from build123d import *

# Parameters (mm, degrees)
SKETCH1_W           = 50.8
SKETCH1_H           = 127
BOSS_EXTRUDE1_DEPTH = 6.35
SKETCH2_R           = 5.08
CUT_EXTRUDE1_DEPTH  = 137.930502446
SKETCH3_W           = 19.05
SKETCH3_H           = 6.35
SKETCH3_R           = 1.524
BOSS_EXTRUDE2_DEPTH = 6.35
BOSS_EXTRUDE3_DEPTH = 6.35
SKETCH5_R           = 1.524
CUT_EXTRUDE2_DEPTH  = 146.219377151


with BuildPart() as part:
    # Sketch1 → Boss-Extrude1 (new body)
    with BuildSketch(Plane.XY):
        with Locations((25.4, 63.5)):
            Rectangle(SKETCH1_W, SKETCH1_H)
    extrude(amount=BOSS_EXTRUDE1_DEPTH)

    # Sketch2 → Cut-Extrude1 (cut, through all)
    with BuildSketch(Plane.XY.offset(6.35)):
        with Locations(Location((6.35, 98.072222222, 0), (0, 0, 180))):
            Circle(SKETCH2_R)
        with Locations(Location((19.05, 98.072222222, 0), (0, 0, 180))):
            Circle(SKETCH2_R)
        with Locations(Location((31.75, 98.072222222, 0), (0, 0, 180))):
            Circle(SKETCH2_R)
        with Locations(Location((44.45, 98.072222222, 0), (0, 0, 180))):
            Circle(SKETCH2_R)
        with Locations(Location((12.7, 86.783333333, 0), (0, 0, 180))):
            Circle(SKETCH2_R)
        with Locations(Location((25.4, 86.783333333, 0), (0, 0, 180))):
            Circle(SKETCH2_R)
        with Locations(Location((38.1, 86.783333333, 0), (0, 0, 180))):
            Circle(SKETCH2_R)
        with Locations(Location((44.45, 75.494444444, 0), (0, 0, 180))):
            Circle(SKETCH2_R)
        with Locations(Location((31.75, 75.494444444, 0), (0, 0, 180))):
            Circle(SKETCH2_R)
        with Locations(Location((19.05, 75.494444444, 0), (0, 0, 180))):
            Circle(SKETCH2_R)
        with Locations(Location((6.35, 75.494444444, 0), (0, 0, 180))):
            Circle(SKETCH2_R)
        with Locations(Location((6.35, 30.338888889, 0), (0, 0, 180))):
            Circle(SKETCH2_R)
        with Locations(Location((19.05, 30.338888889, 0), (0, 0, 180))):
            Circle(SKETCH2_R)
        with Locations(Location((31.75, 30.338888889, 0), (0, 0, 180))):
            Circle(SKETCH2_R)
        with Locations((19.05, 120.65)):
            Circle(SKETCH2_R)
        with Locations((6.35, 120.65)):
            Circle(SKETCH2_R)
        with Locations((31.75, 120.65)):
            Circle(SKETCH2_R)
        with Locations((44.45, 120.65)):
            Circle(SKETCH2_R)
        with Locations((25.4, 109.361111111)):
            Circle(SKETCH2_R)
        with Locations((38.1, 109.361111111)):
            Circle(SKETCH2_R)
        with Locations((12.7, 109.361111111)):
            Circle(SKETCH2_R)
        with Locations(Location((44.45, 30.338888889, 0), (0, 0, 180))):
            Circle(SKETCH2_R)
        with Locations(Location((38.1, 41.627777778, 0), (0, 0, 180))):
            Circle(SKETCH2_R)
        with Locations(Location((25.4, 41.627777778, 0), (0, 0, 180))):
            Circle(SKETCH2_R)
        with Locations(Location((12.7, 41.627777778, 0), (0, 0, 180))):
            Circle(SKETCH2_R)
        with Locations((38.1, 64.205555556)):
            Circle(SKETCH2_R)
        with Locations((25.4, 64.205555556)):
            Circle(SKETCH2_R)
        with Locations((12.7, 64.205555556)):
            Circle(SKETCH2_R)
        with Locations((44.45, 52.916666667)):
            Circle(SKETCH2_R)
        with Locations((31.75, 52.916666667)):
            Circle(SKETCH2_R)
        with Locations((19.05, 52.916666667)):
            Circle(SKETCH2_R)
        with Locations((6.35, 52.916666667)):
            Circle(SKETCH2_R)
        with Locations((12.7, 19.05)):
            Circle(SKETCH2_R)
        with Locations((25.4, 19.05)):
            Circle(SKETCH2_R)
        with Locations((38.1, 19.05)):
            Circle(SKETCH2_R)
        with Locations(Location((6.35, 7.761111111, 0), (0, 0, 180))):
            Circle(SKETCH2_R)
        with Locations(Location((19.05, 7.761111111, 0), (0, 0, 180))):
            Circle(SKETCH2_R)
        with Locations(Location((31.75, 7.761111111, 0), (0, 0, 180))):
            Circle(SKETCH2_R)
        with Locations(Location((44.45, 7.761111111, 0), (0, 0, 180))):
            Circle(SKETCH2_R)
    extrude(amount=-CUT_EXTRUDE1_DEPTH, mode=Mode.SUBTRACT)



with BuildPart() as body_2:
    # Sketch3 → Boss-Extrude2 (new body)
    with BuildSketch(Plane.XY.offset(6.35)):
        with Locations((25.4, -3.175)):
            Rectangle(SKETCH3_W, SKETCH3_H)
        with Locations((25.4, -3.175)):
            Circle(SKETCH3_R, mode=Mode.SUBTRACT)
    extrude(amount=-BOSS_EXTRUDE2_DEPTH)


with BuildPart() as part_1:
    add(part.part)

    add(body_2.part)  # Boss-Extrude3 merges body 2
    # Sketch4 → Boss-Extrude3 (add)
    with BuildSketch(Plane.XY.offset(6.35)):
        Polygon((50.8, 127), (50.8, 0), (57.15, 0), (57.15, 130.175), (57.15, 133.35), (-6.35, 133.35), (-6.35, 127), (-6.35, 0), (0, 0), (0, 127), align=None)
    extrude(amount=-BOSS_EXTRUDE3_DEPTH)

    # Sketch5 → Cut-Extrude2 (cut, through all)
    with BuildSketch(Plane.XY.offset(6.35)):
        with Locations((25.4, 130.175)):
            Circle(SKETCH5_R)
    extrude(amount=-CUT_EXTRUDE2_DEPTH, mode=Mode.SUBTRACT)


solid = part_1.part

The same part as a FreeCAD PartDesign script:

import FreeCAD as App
import Part
import Sketcher

V = App.Vector
Q = App.Units.Quantity


def add_polygon(sketch, points):
    """Adds a closed chain of lines whose ends are joined by coincident constraints."""
    first, n = sketch.GeometryCount, len(points)
    for a, b in zip(points, points[1:] + points[:1]):
        sketch.addGeometry(Part.LineSegment(App.Vector(*a, 0), App.Vector(*b, 0)), False)
    for i in range(n):
        sketch.addConstraint(Sketcher.Constraint("Coincident", first + i, 2, first + (i + 1) % n, 1))

doc = App.newDocument("Part")
body = doc.addObject("PartDesign::Body", "Body")

sketch1 = doc.addObject("Sketcher::SketchObject", "Sketch")
body.addObject(sketch1)
sketch1.AttachmentSupport = (doc.XY_Plane, [""])
sketch1.MapMode = "FlatFace"
add_polygon(sketch1, [(0, 127), (0, 0), (51, 0), (51, 127)])
sketch1.addConstraint(Sketcher.Constraint("Vertical", 0))
sketch1.addConstraint(Sketcher.Constraint("Horizontal", 1))
sketch1.addConstraint(Sketcher.Constraint("Vertical", 2))
sketch1.addConstraint(Sketcher.Constraint("Horizontal", 3))
sketch1.addConstraint(Sketcher.Constraint("Coincident", 0, 2, -1, 1))
sketch1.addConstraint(Sketcher.Constraint("DistanceX", 1, 1, 1, 2, Q("2 in")))
sketch1.addConstraint(Sketcher.Constraint("DistanceY", 0, 2, 0, 1, Q("5 in")))
pad1 = doc.addObject("PartDesign::Pad", "Pad")
body.addObject(pad1)
pad1.Profile = sketch1
pad1.Length = Q("0.25 in")

sketch2 = doc.addObject("Sketcher::SketchObject", "Sketch001")
body.addObject(sketch2)
sketch2.AttachmentSupport = (doc.XY_Plane, [""])
sketch2.MapMode = "FlatFace"
sketch2.AttachmentOffset = App.Placement(V(0, 0, 0.25 * 25.4), App.Rotation())
sketch2.addGeometry(Part.Circle(V(6, 98, 0), V(0, 0, 1), 5), False)
sketch2.addGeometry(Part.Circle(V(19, 98, 0), V(0, 0, 1), 5), False)
sketch2.addGeometry(Part.Circle(V(32, 98, 0), V(0, 0, 1), 5), False)
sketch2.addGeometry(Part.Circle(V(44, 98, 0), V(0, 0, 1), 5), False)
sketch2.addGeometry(Part.Circle(V(13, 87, 0), V(0, 0, 1), 5), False)
sketch2.addGeometry(Part.Circle(V(25, 87, 0), V(0, 0, 1), 5), False)
sketch2.addGeometry(Part.Circle(V(38, 87, 0), V(0, 0, 1), 5), False)
sketch2.addGeometry(Part.Circle(V(44, 75, 0), V(0, 0, 1), 5), False)
sketch2.addGeometry(Part.Circle(V(32, 75, 0), V(0, 0, 1), 5), False)
sketch2.addGeometry(Part.Circle(V(19, 75, 0), V(0, 0, 1), 5), False)
sketch2.addGeometry(Part.Circle(V(6, 75, 0), V(0, 0, 1), 5), False)
sketch2.addGeometry(Part.Circle(V(6, 30, 0), V(0, 0, 1), 5), False)
sketch2.addGeometry(Part.Circle(V(19, 30, 0), V(0, 0, 1), 5), False)
sketch2.addGeometry(Part.Circle(V(32, 30, 0), V(0, 0, 1), 5), False)
sketch2.addGeometry(Part.Circle(V(19, 121, 0), V(0, 0, 1), 5), False)
sketch2.addGeometry(Part.Circle(V(6, 121, 0), V(0, 0, 1), 5), False)
sketch2.addGeometry(Part.Circle(V(32, 121, 0), V(0, 0, 1), 5), False)
sketch2.addGeometry(Part.Circle(V(44, 121, 0), V(0, 0, 1), 5), False)
sketch2.addGeometry(Part.Circle(V(25, 109, 0), V(0, 0, 1), 5), False)
sketch2.addGeometry(Part.Circle(V(38, 109, 0), V(0, 0, 1), 5), False)
sketch2.addGeometry(Part.Circle(V(13, 109, 0), V(0, 0, 1), 5), False)
sketch2.addGeometry(Part.Circle(V(44, 30, 0), V(0, 0, 1), 5), False)
sketch2.addGeometry(Part.Circle(V(38, 42, 0), V(0, 0, 1), 5), False)
sketch2.addGeometry(Part.Circle(V(25, 42, 0), V(0, 0, 1), 5), False)
sketch2.addGeometry(Part.Circle(V(13, 42, 0), V(0, 0, 1), 5), False)
sketch2.addGeometry(Part.Circle(V(38, 64, 0), V(0, 0, 1), 5), False)
sketch2.addGeometry(Part.Circle(V(25, 64, 0), V(0, 0, 1), 5), False)
sketch2.addGeometry(Part.Circle(V(13, 64, 0), V(0, 0, 1), 5), False)
sketch2.addGeometry(Part.Circle(V(44, 53, 0), V(0, 0, 1), 5), False)
sketch2.addGeometry(Part.Circle(V(32, 53, 0), V(0, 0, 1), 5), False)
sketch2.addGeometry(Part.Circle(V(19, 53, 0), V(0, 0, 1), 5), False)
sketch2.addGeometry(Part.Circle(V(6, 53, 0), V(0, 0, 1), 5), False)
sketch2.addGeometry(Part.Circle(V(13, 19, 0), V(0, 0, 1), 5), False)
sketch2.addGeometry(Part.Circle(V(25, 19, 0), V(0, 0, 1), 5), False)
sketch2.addGeometry(Part.Circle(V(38, 19, 0), V(0, 0, 1), 5), False)
sketch2.addGeometry(Part.Circle(V(6, 8, 0), V(0, 0, 1), 5), False)
sketch2.addGeometry(Part.Circle(V(19, 8, 0), V(0, 0, 1), 5), False)
sketch2.addGeometry(Part.Circle(V(32, 8, 0), V(0, 0, 1), 5), False)
sketch2.addGeometry(Part.Circle(V(44, 8, 0), V(0, 0, 1), 5), False)
sketch2.addConstraint(Sketcher.Constraint("Equal", 0, 1))
sketch2.addConstraint(Sketcher.Constraint("Equal", 1, 2))
sketch2.addConstraint(Sketcher.Constraint("Equal", 2, 3))
sketch2.addConstraint(Sketcher.Constraint("Equal", 3, 4))
sketch2.addConstraint(Sketcher.Constraint("Equal", 4, 5))
sketch2.addConstraint(Sketcher.Constraint("Equal", 5, 6))
sketch2.addConstraint(Sketcher.Constraint("Equal", 6, 7))
sketch2.addConstraint(Sketcher.Constraint("Equal", 7, 8))
sketch2.addConstraint(Sketcher.Constraint("Equal", 8, 9))
sketch2.addConstraint(Sketcher.Constraint("Equal", 9, 10))
sketch2.addConstraint(Sketcher.Constraint("Equal", 10, 11))
sketch2.addConstraint(Sketcher.Constraint("Equal", 11, 12))
sketch2.addConstraint(Sketcher.Constraint("Equal", 12, 13))
sketch2.addConstraint(Sketcher.Constraint("Equal", 13, 14))
sketch2.addConstraint(Sketcher.Constraint("Equal", 14, 15))
sketch2.addConstraint(Sketcher.Constraint("Equal", 15, 16))
sketch2.addConstraint(Sketcher.Constraint("Equal", 16, 17))
sketch2.addConstraint(Sketcher.Constraint("Equal", 17, 18))
sketch2.addConstraint(Sketcher.Constraint("Equal", 18, 19))
sketch2.addConstraint(Sketcher.Constraint("Equal", 19, 20))
sketch2.addConstraint(Sketcher.Constraint("Equal", 20, 21))
sketch2.addConstraint(Sketcher.Constraint("Equal", 21, 22))
sketch2.addConstraint(Sketcher.Constraint("Equal", 22, 23))
sketch2.addConstraint(Sketcher.Constraint("Equal", 23, 24))
sketch2.addConstraint(Sketcher.Constraint("Equal", 24, 25))
sketch2.addConstraint(Sketcher.Constraint("Equal", 25, 26))
sketch2.addConstraint(Sketcher.Constraint("Equal", 26, 27))
sketch2.addConstraint(Sketcher.Constraint("Equal", 27, 28))
sketch2.addConstraint(Sketcher.Constraint("Equal", 28, 29))
sketch2.addConstraint(Sketcher.Constraint("Equal", 29, 30))
sketch2.addConstraint(Sketcher.Constraint("Equal", 30, 31))
sketch2.addConstraint(Sketcher.Constraint("Equal", 31, 32))
sketch2.addConstraint(Sketcher.Constraint("Equal", 32, 33))
sketch2.addConstraint(Sketcher.Constraint("Equal", 33, 34))
sketch2.addConstraint(Sketcher.Constraint("Equal", 34, 35))
sketch2.addConstraint(Sketcher.Constraint("Equal", 35, 36))
sketch2.addConstraint(Sketcher.Constraint("Equal", 36, 37))
sketch2.addConstraint(Sketcher.Constraint("Equal", 37, 38))
sketch2.addConstraint(Sketcher.Constraint("Horizontal", 0, 3, 1, 3))
sketch2.addConstraint(Sketcher.Constraint("Horizontal", 1, 3, 2, 3))
sketch2.addConstraint(Sketcher.Constraint("Horizontal", 2, 3, 3, 3))
sketch2.addConstraint(Sketcher.Constraint("Horizontal", 4, 3, 5, 3))
sketch2.addConstraint(Sketcher.Constraint("Horizontal", 5, 3, 6, 3))
sketch2.addConstraint(Sketcher.Constraint("Horizontal", 7, 3, 8, 3))
sketch2.addConstraint(Sketcher.Constraint("Horizontal", 8, 3, 9, 3))
sketch2.addConstraint(Sketcher.Constraint("Horizontal", 9, 3, 10, 3))
sketch2.addConstraint(Sketcher.Constraint("Horizontal", 11, 3, 12, 3))
sketch2.addConstraint(Sketcher.Constraint("Horizontal", 12, 3, 13, 3))
sketch2.addConstraint(Sketcher.Constraint("Horizontal", 14, 3, 15, 3))
sketch2.addConstraint(Sketcher.Constraint("Horizontal", 15, 3, 16, 3))
sketch2.addConstraint(Sketcher.Constraint("Horizontal", 16, 3, 17, 3))
sketch2.addConstraint(Sketcher.Constraint("Horizontal", 18, 3, 19, 3))
sketch2.addConstraint(Sketcher.Constraint("Horizontal", 19, 3, 20, 3))
sketch2.addConstraint(Sketcher.Constraint("Horizontal", 13, 3, 21, 3))
sketch2.addConstraint(Sketcher.Constraint("Horizontal", 22, 3, 23, 3))
sketch2.addConstraint(Sketcher.Constraint("Horizontal", 23, 3, 24, 3))
sketch2.addConstraint(Sketcher.Constraint("Horizontal", 25, 3, 26, 3))
sketch2.addConstraint(Sketcher.Constraint("Horizontal", 26, 3, 27, 3))
sketch2.addConstraint(Sketcher.Constraint("Horizontal", 28, 3, 29, 3))
sketch2.addConstraint(Sketcher.Constraint("Horizontal", 29, 3, 30, 3))
sketch2.addConstraint(Sketcher.Constraint("Horizontal", 30, 3, 31, 3))
sketch2.addConstraint(Sketcher.Constraint("Horizontal", 32, 3, 33, 3))
sketch2.addConstraint(Sketcher.Constraint("Horizontal", 33, 3, 34, 3))
sketch2.addConstraint(Sketcher.Constraint("Horizontal", 35, 3, 36, 3))
sketch2.addConstraint(Sketcher.Constraint("Horizontal", 36, 3, 37, 3))
sketch2.addConstraint(Sketcher.Constraint("Horizontal", 37, 3, 38, 3))
sketch2.addConstraint(Sketcher.Constraint("Vertical", 3, 3, 7, 3))
sketch2.addConstraint(Sketcher.Constraint("Vertical", 2, 3, 8, 3))
sketch2.addConstraint(Sketcher.Constraint("Vertical", 1, 3, 9, 3))
sketch2.addConstraint(Sketcher.Constraint("Vertical", 0, 3, 10, 3))
sketch2.addConstraint(Sketcher.Constraint("Vertical", 10, 3, 11, 3))
sketch2.addConstraint(Sketcher.Constraint("Vertical", 9, 3, 12, 3))
sketch2.addConstraint(Sketcher.Constraint("Vertical", 8, 3, 13, 3))
sketch2.addConstraint(Sketcher.Constraint("Vertical", 12, 3, 14, 3))
sketch2.addConstraint(Sketcher.Constraint("Vertical", 11, 3, 15, 3))
sketch2.addConstraint(Sketcher.Constraint("Vertical", 13, 3, 16, 3))
sketch2.addConstraint(Sketcher.Constraint("Vertical", 7, 3, 17, 3))
sketch2.addConstraint(Sketcher.Constraint("Vertical", 5, 3, 18, 3))
sketch2.addConstraint(Sketcher.Constraint("Vertical", 6, 3, 19, 3))
sketch2.addConstraint(Sketcher.Constraint("Vertical", 4, 3, 20, 3))
sketch2.addConstraint(Sketcher.Constraint("Vertical", 17, 3, 21, 3))
sketch2.addConstraint(Sketcher.Constraint("Vertical", 19, 3, 22, 3))
sketch2.addConstraint(Sketcher.Constraint("Vertical", 18, 3, 23, 3))
sketch2.addConstraint(Sketcher.Constraint("Vertical", 20, 3, 24, 3))
sketch2.addConstraint(Sketcher.Constraint("Vertical", 22, 3, 25, 3))
sketch2.addConstraint(Sketcher.Constraint("Vertical", 23, 3, 26, 3))
sketch2.addConstraint(Sketcher.Constraint("Vertical", 24, 3, 27, 3))
sketch2.addConstraint(Sketcher.Constraint("Vertical", 21, 3, 28, 3))
sketch2.addConstraint(Sketcher.Constraint("Vertical", 16, 3, 29, 3))
sketch2.addConstraint(Sketcher.Constraint("Vertical", 14, 3, 30, 3))
sketch2.addConstraint(Sketcher.Constraint("Vertical", 15, 3, 31, 3))
sketch2.addConstraint(Sketcher.Constraint("Vertical", 27, 3, 32, 3))
sketch2.addConstraint(Sketcher.Constraint("Vertical", 26, 3, 33, 3))
sketch2.addConstraint(Sketcher.Constraint("Vertical", 25, 3, 34, 3))
sketch2.addConstraint(Sketcher.Constraint("Vertical", 31, 3, 35, 3))
sketch2.addConstraint(Sketcher.Constraint("Vertical", 30, 3, 36, 3))
sketch2.addConstraint(Sketcher.Constraint("Vertical", 29, 3, 37, 3))
sketch2.addConstraint(Sketcher.Constraint("Vertical", 28, 3, 38, 3))
sketch2.addConstraint(Sketcher.Constraint("Diameter", 0, Q("0.4 in")))
sketch2.addConstraint(Sketcher.Constraint("DistanceX", -1, 1, 5, 3, Q("1 in")))
sketch2.addConstraint(Sketcher.Constraint("DistanceX", 0, 3, 2, 3, Q("1 in")))
sketch2.addConstraint(Sketcher.Constraint("DistanceX", 1, 3, 3, 3, Q("1 in")))
sketch2.addConstraint(Sketcher.Constraint("DistanceX", 4, 3, 6, 3, Q("1 in")))
sketch2.addConstraint(Sketcher.Constraint("DistanceX", -1, 1, 4, 3, Q("0.5 in")))
sketch2.addConstraint(Sketcher.Constraint("DistanceX", 0, 3, 1, 3, Q("0.5 in")))
sketch2.addConstraint(Sketcher.Constraint("DistanceX", -1, 1, 0, 3, Q("0.25 in")))
sketch2.addConstraint(Sketcher.Constraint("DistanceY", -1, 1, 14, 3, Q("4.75 in")))
sketch2.addConstraint(Sketcher.Constraint("DistanceY", -1, 1, 32, 3, Q("0.75 in")))
sketch2.addConstraint(Sketcher.Constraint("DistanceY", -1, 1, 11, 3, 30.338889))
sketch2.addConstraint(Sketcher.Constraint("DistanceY", -1, 1, 18, 3, 109.361111))
sketch2.addConstraint(Sketcher.Constraint("DistanceY", -1, 1, 35, 3, 7.761111))
sketch2.addConstraint(Sketcher.Constraint("DistanceY", 4, 3, 0, 3, 11.288889))
sketch2.addConstraint(Sketcher.Constraint("DistanceY", 7, 3, 6, 3, 11.288889))
sketch2.addConstraint(Sketcher.Constraint("DistanceY", 1, 3, 18, 3, 11.288889))
sketch2.addConstraint(Sketcher.Constraint("DistanceY", 13, 3, 22, 3, 11.288889))
sketch2.addConstraint(Sketcher.Constraint("DistanceY", 25, 3, 7, 3, 11.288889))
sketch2.addConstraint(Sketcher.Constraint("DistanceY", 28, 3, 25, 3, 11.288889))
pocket1 = doc.addObject("PartDesign::Pocket", "Pocket")
body.addObject(pocket1)
pocket1.Profile = sketch2
pocket1.Type = "ThroughAll"
body2 = doc.addObject("PartDesign::Body", "Body001")

sketch3 = doc.addObject("Sketcher::SketchObject", "Sketch002")
body2.addObject(sketch3)
sketch3.AttachmentSupport = (doc.getObject("XY_Plane001"), [""])
sketch3.MapMode = "FlatFace"
sketch3.AttachmentOffset = App.Placement(V(0, 0, 0.25 * 25.4), App.Rotation())
add_polygon(sketch3, [(15.9, 0), (15.9, -6.3), (34.9, -6.3), (34.9, 0)])
sketch3.addGeometry(Part.Circle(V(25.4, -3.2, 0), V(0, 0, 1), 1.5), False)
sketch3.addConstraint(Sketcher.Constraint("Vertical", 0))
sketch3.addConstraint(Sketcher.Constraint("Horizontal", 1))
sketch3.addConstraint(Sketcher.Constraint("Vertical", 2))
sketch3.addConstraint(Sketcher.Constraint("Horizontal", 3))
sketch3.addConstraint(Sketcher.Constraint("PointOnObject", 2, 2, -1))
sketch3.addConstraint(Sketcher.Constraint("Diameter", 4, Q("0.12 in")))
sketch3.addConstraint(Sketcher.Constraint("DistanceX", -1, 1, 4, 3, Q("1 in")))
sketch3.addConstraint(Sketcher.Constraint("DistanceX", 1, 1, 1, 2, Q("0.75 in")))
sketch3.addConstraint(Sketcher.Constraint("DistanceY", 0, 2, 0, 1, Q("0.25 in")))
sketch3.addConstraint(Sketcher.Constraint("DistanceY", 4, 3, -1, 1, Q("0.125 in")))
sketch3.addConstraint(Sketcher.Constraint("DistanceX", -1, 1, 0, 2, Q("0.625 in")))
pad2 = doc.addObject("PartDesign::Pad", "Pad001")
body2.addObject(pad2)
pad2.Profile = sketch3
pad2.Length = Q("0.25 in")
pad2.Reversed = True
doc.recompute()

boolean = doc.addObject("PartDesign::Boolean", "Boolean")
body.addObject(boolean)
boolean.Type = "Fuse"
boolean.addObjects([body2])

sketch4 = doc.addObject("Sketcher::SketchObject", "Sketch003")
body.addObject(sketch4)
sketch4.AttachmentSupport = (doc.XY_Plane, [""])
sketch4.MapMode = "FlatFace"
sketch4.AttachmentOffset = App.Placement(V(0, 0, 0.25 * 25.4), App.Rotation())
add_polygon(sketch4, [(51, 127), (51, 0), (57, 0), (57, 133), (-6, 133), (-6, 0), (0, 0), (0, 127)])
sketch4.addConstraint(Sketcher.Constraint("Vertical", 0))
sketch4.addConstraint(Sketcher.Constraint("Horizontal", 1))
sketch4.addConstraint(Sketcher.Constraint("Vertical", 2))
sketch4.addConstraint(Sketcher.Constraint("Horizontal", 3))
sketch4.addConstraint(Sketcher.Constraint("Vertical", 4))
sketch4.addConstraint(Sketcher.Constraint("Horizontal", 5))
sketch4.addConstraint(Sketcher.Constraint("Vertical", 6))
sketch4.addConstraint(Sketcher.Constraint("Horizontal", 7))
sketch4.addConstraint(Sketcher.Constraint("Coincident", 5, 2, -1, 1))
sketch4.addConstraint(Sketcher.Constraint("PointOnObject", 0, 2, -1))
sketch4.addConstraint(Sketcher.Constraint("Equal", 1, 5))
sketch4.addConstraint(Sketcher.Constraint("DistanceX", 7, 1, 7, 2, Q("2 in")))
sketch4.addConstraint(Sketcher.Constraint("DistanceY", 0, 2, 0, 1, Q("5 in")))
sketch4.addConstraint(Sketcher.Constraint("DistanceX", 3, 2, 3, 1, Q("2.5 in")))
sketch4.addConstraint(Sketcher.Constraint("DistanceY", 2, 1, 2, 2, Q("5.25 in")))
pad3 = doc.addObject("PartDesign::Pad", "Pad002")
body.addObject(pad3)
pad3.Profile = sketch4
pad3.Length = Q("0.25 in")
pad3.Reversed = True

sketch5 = doc.addObject("Sketcher::SketchObject", "Sketch004")
body.addObject(sketch5)
sketch5.AttachmentSupport = (doc.XY_Plane, [""])
sketch5.MapMode = "FlatFace"
sketch5.AttachmentOffset = App.Placement(V(0, 0, 0.25 * 25.4), App.Rotation())
sketch5.addGeometry(Part.Circle(V(25.4, 130.2, 0), V(0, 0, 1), 1.5), False)
sketch5.addConstraint(Sketcher.Constraint("Diameter", 0, Q("0.12 in")))
sketch5.addConstraint(Sketcher.Constraint("DistanceX", -1, 1, 0, 3, Q("1 in")))
sketch5.addConstraint(Sketcher.Constraint("DistanceY", -1, 1, 0, 3, Q("5.125 in")))
pocket2 = doc.addObject("PartDesign::Pocket", "Pocket001")
body.addObject(pocket2)
pocket2.Profile = sketch5
pocket2.Type = "ThroughAll"

doc.recompute()
